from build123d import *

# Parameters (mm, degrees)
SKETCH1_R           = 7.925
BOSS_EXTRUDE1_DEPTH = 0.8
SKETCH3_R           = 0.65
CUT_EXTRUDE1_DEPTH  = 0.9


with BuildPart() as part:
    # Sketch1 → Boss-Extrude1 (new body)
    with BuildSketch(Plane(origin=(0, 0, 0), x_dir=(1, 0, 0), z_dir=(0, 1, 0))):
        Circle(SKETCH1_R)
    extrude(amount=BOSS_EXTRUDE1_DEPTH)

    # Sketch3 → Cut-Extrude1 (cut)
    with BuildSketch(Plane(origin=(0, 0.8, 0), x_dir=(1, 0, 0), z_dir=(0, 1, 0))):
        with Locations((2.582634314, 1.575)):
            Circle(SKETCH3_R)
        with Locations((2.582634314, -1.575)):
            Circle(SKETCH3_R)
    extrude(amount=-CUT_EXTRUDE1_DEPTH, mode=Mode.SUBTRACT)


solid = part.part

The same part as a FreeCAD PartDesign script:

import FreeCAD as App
import Part
import Sketcher

V = App.Vector
Q = App.Units.Quantity

doc = App.newDocument("Part")
params = doc.addObject("Spreadsheet::Sheet", "Params")
for row, (alias, value) in enumerate([
    ("sketch1_diameter", "15.85 mm"),
    ("pad1_length", "0.8 mm"),
    ("sketch2_diameter", "1.3 mm"),
    ("pocket1_length", "0.9 mm"),
], start=1):
    params.set(f"A{row}", alias)
    params.set(f"B{row}", "=" + value)
    params.setAlias(f"B{row}", alias)

body = doc.addObject("PartDesign::Body", "Body")

sketch1 = body.newObject("Sketcher::SketchObject", "Sketch")
sketch1.AttachmentSupport = (doc.getObject("XZ_Plane"), [""])
sketch1.MapMode = "FlatFace"
sketch1.addGeometry(Part.Circle(V(0, 0, 0), V(0, 0, 1), 8), False)
sketch1.addConstraint(Sketcher.Constraint("Coincident", 0, 3, -1, 1))
sketch1.addConstraint(Sketcher.Constraint("Diameter", 0, Q("15.85 mm")))
sketch1.setExpression("Constraints[1]", "Params.sketch1_diameter")
pad1 = body.newObject("PartDesign::Pad", "Pad")
pad1.Profile = sketch1
pad1.setExpression("Length", "Params.pad1_length")
pad1.Reversed = True

sketch2 = body.newObject("Sketcher::SketchObject", "Sketch001")
sketch2.AttachmentSupport = (doc.getObject("XZ_Plane"), [""])
sketch2.MapMode = "FlatFace"
sketch2.AttachmentOffset = App.Placement(V(0, 0, -0.8), App.Rotation())
sketch2.addGeometry(Part.Circle(V(2.6, -1.6, 0), V(0, 0, 1), 0.7), False)
sketch2.addGeometry(Part.Circle(V(2.6, 1.6, 0), V(0, 0, 1), 0.7), False)
sketch2.addConstraint(Sketcher.Constraint("Equal", 0, 1))
sketch2.addConstraint(Sketcher.Constraint("Symmetric", 0, 3, 1, 3, -1))
sketch2.addConstraint(Sketcher.Constraint("Diameter", 0, Q("1.3 mm")))
sketch2.addConstraint(Sketcher.Constraint("DistanceY", 0, 3, 1, 3, Q("3.15 mm")))
sketch2.addConstraint(Sketcher.Constraint("DistanceX", -1, 1, 0, 3, Q("2.582634 mm")))
sketch2.setExpression("Constraints[2]", "Params.sketch2_diameter")
pocket1 = body.newObject("PartDesign::Pocket", "Pocket")
pocket1.Profile = sketch2
pocket1.setExpression("Length", "Params.pocket1_length")
pocket1.Reversed = True

doc.recompute()
